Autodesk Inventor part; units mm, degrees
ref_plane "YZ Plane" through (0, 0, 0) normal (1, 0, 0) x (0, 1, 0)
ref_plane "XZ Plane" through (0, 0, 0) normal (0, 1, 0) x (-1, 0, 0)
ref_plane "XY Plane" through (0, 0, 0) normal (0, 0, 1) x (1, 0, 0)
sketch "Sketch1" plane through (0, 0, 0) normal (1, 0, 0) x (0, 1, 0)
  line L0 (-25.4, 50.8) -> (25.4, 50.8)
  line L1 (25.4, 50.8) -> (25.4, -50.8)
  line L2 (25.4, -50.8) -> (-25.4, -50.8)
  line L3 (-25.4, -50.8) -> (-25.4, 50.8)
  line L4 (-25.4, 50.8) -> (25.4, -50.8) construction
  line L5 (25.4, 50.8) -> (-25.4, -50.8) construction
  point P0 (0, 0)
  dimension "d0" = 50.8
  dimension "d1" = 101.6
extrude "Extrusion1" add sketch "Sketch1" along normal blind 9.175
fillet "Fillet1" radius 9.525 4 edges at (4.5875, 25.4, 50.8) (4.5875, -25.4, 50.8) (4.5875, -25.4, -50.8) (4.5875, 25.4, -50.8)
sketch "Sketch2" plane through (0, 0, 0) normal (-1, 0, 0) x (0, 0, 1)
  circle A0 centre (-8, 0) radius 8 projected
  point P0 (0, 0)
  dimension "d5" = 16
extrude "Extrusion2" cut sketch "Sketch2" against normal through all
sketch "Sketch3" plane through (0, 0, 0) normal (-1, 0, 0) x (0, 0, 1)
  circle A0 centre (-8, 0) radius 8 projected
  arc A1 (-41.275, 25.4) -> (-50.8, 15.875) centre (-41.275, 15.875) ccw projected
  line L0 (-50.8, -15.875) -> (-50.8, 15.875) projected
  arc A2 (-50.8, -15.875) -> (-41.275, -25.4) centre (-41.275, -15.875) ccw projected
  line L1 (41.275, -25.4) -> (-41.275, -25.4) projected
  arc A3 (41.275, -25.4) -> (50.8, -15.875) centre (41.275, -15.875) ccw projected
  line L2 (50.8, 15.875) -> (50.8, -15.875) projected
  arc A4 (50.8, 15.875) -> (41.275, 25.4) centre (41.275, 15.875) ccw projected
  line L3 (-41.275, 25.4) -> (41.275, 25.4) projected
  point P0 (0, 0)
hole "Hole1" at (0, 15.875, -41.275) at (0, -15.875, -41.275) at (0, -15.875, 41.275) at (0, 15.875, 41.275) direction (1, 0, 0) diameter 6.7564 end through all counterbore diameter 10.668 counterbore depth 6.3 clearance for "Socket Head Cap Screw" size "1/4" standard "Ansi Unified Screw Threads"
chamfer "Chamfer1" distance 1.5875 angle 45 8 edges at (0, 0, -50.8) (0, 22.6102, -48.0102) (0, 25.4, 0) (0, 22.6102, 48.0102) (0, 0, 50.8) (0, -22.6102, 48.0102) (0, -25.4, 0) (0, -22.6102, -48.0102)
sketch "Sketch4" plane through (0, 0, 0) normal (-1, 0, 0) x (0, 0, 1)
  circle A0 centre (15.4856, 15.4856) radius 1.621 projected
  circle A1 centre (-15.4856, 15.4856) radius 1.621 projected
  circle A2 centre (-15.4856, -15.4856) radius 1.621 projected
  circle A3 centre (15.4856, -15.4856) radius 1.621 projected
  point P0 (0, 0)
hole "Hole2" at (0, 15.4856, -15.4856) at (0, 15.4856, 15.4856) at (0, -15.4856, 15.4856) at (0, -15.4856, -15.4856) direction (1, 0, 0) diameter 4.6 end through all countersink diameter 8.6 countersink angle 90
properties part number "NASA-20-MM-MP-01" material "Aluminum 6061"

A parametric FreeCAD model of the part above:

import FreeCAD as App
import Part
import Sketcher
from FreeCAD import Vector
Q = App.Units.Quantity


def edges_at(feature, points):
    """Names of the edges that pass closest to the given points."""
    edges = feature.Shape.Edges
    near = lambda p: min(range(len(edges)), key=lambda i: edges[i].distToShape(Part.Vertex(*p))[0])
    return sorted({f"Edge{near(p) + 1}" for p in points})


def add_polygon(sketch, points):
    """Adds a closed chain of lines whose ends are joined by coincident constraints."""
    first, n = sketch.GeometryCount, len(points)
    for a, b in zip(points, points[1:] + points[:1]):
        sketch.addGeometry(Part.LineSegment(App.Vector(*a, 0), App.Vector(*b, 0)), False)
    for i in range(n):
        sketch.addConstraint(Sketcher.Constraint("Coincident", first + i, 2, first + (i + 1) % n, 1))

doc = App.newDocument("Part")
body = doc.addObject("PartDesign::Body", "Body")

sketch1 = body.newObject("Sketcher::SketchObject", "Sketch")
sketch1.AttachmentSupport = (doc.getObject("YZ_Plane"), [""])
sketch1.MapMode = "FlatFace"
add_polygon(sketch1, [(25, 51), (-25, 51), (-25, -51), (25, -51)])
sketch1.addConstraint([
    Sketcher.Constraint("Horizontal", 0),
    Sketcher.Constraint("Vertical", 1),
    Sketcher.Constraint("Horizontal", 2),
    Sketcher.Constraint("Vertical", 3),
    Sketcher.Constraint("Symmetric", 0, 2, 2, 2, -1, 1),
    Sketcher.Constraint("DistanceX", 0, 2, 0, 1, Q("2 in")),
    Sketcher.Constraint("DistanceY", 1, 2, 1, 1, Q("4 in")),
])
pad1 = body.newObject("PartDesign::Pad", "Pad")
pad1.Profile = sketch1
pad1.Length = 9.175
doc.recompute()

fillet = body.newObject("PartDesign::Fillet", "Fillet")
fillet.Base = (pad1, edges_at(pad1, [
    (4.588, 25.4, 50.8),
    (4.588, -25.4, 50.8),
    (4.588, -25.4, -50.8),
    (4.588, 25.4, -50.8),
]))
fillet.Radius = Q("0.375 in")

sketch2 = body.newObject("Sketcher::SketchObject", "Sketch001")
sketch2.AttachmentSupport = (doc.getObject("YZ_Plane"), [""])
sketch2.MapMode = "FlatFace"
sketch2.addGeometry(Part.Circle(Vector(0, -8, 0), Vector(0, 0, 1), 8), False)
sketch2.addConstraint([
    Sketcher.Constraint("PointOnObject", 0, 3, -2),
    Sketcher.Constraint("Diameter", 0, 16.0),
    Sketcher.Constraint("DistanceY", 0, 3, -1, 1, 8.0),
])
pocket1 = body.newObject("PartDesign::Pocket", "Pocket")
pocket1.Profile = sketch2
pocket1.Type = "ThroughAll"
pocket1.Reversed = True

sketch3 = body.newObject("Sketcher::SketchObject", "Sketch002")
sketch3.AttachmentSupport = (doc.getObject("YZ_Plane"), [""])
sketch3.MapMode = "FlatFace"
sketch3.addGeometry([
    Part.Circle(Vector(15.9, -41.3, 0), Vector(0, 0, 1), 3.4),
    Part.Circle(Vector(-15.9, -41.3, 0), Vector(0, 0, 1), 3.4),
    Part.Circle(Vector(-15.9, 41.3, 0), Vector(0, 0, 1), 3.4),
    Part.Circle(Vector(15.9, 41.3, 0), Vector(0, 0, 1), 3.4),
], False)
sketch3.addConstraint([
    Sketcher.Constraint("Equal", 0, 1),
    Sketcher.Constraint("Equal", 1, 2),
    Sketcher.Constraint("Equal", 2, 3),
    Sketcher.Constraint("Symmetric", 0, 3, 2, 3, -1, 1),
    Sketcher.Constraint("Symmetric", 1, 3, 3, 3, -1, 1),
    Sketcher.Constraint("Symmetric", 0, 3, 1, 3, -2),
    Sketcher.Constraint("Diameter", 0, Q("0.266 in")),
    Sketcher.Constraint("DistanceX", 1, 3, 0, 3, Q("1.25 in")),
    Sketcher.Constraint("DistanceY", 1, 3, 2, 3, Q("3.25 in")),
])
doc.recompute()
hole = body.newObject("PartDesign::Hole", "Hole")
hole.Profile = sketch3
hole.ThreadType = "None"
hole.Diameter = Q("0.266 in")
hole.DepthType = "ThroughAll"
hole.HoleCutType = "Counterbore"
hole.HoleCutDiameter = Q("0.42 in")
hole.HoleCutDepth = 6.3
hole.Reversed = True
doc.recompute()

chamfer = body.newObject("PartDesign::Chamfer", "Chamfer")
chamfer.Base = (hole, edges_at(hole, [
    (0, 0, -50.8),
    (0, 22.61, -48.01),
    (0, 25.4, 0),
    (0, 22.61, 48.01),
    (0, 0, 50.8),
    (0, -22.61, 48.01),
    (0, -25.4, 0),
    (0, -22.61, -48.01),
]))
chamfer.Size = Q("0.0625 in")

sketch4 = body.newObject("Sketcher::SketchObject", "Sketch003")
sketch4.AttachmentSupport = (doc.getObject("YZ_Plane"), [""])
sketch4.MapMode = "FlatFace"
sketch4.addGeometry([
    Part.Circle(Vector(15.5, -15.5, 0), Vector(0, 0, 1), 2.3),
    Part.Circle(Vector(15.5, 15.5, 0), Vector(0, 0, 1), 2.3),
    Part.Circle(Vector(-15.5, 15.5, 0), Vector(0, 0, 1), 2.3),
    Part.Circle(Vector(-15.5, -15.5, 0), Vector(0, 0, 1), 2.3),
], False)
sketch4.addConstraint([
    Sketcher.Constraint("Equal", 0, 1),
    Sketcher.Constraint("Equal", 1, 2),
    Sketcher.Constraint("Equal", 2, 3),
    Sketcher.Constraint("Symmetric", 0, 3, 2, 3, -1, 1),
    Sketcher.Constraint("Symmetric", 1, 3, 3, 3, -1, 1),
    Sketcher.Constraint("Symmetric", 1, 3, 2, 3, -2),
    Sketcher.Constraint("Diameter", 0, Q("0.1811 in")),
    Sketcher.Constraint("DistanceX", -1, 1, 0, 3, 15.4856),
    Sketcher.Constraint("DistanceY", 0, 3, -1, 1, 15.4856),
])
doc.recompute()
hole2 = body.newObject("PartDesign::Hole", "Hole001")
hole2.Profile = sketch4
hole2.ThreadType = "None"
hole2.Diameter = Q("0.1811024 in")
hole2.DepthType = "ThroughAll"
hole2.HoleCutType = "Countersink"
hole2.HoleCutDiameter = 8.6
hole2.HoleCutCountersinkAngle = 90
hole2.Reversed = True

doc.recompute()
